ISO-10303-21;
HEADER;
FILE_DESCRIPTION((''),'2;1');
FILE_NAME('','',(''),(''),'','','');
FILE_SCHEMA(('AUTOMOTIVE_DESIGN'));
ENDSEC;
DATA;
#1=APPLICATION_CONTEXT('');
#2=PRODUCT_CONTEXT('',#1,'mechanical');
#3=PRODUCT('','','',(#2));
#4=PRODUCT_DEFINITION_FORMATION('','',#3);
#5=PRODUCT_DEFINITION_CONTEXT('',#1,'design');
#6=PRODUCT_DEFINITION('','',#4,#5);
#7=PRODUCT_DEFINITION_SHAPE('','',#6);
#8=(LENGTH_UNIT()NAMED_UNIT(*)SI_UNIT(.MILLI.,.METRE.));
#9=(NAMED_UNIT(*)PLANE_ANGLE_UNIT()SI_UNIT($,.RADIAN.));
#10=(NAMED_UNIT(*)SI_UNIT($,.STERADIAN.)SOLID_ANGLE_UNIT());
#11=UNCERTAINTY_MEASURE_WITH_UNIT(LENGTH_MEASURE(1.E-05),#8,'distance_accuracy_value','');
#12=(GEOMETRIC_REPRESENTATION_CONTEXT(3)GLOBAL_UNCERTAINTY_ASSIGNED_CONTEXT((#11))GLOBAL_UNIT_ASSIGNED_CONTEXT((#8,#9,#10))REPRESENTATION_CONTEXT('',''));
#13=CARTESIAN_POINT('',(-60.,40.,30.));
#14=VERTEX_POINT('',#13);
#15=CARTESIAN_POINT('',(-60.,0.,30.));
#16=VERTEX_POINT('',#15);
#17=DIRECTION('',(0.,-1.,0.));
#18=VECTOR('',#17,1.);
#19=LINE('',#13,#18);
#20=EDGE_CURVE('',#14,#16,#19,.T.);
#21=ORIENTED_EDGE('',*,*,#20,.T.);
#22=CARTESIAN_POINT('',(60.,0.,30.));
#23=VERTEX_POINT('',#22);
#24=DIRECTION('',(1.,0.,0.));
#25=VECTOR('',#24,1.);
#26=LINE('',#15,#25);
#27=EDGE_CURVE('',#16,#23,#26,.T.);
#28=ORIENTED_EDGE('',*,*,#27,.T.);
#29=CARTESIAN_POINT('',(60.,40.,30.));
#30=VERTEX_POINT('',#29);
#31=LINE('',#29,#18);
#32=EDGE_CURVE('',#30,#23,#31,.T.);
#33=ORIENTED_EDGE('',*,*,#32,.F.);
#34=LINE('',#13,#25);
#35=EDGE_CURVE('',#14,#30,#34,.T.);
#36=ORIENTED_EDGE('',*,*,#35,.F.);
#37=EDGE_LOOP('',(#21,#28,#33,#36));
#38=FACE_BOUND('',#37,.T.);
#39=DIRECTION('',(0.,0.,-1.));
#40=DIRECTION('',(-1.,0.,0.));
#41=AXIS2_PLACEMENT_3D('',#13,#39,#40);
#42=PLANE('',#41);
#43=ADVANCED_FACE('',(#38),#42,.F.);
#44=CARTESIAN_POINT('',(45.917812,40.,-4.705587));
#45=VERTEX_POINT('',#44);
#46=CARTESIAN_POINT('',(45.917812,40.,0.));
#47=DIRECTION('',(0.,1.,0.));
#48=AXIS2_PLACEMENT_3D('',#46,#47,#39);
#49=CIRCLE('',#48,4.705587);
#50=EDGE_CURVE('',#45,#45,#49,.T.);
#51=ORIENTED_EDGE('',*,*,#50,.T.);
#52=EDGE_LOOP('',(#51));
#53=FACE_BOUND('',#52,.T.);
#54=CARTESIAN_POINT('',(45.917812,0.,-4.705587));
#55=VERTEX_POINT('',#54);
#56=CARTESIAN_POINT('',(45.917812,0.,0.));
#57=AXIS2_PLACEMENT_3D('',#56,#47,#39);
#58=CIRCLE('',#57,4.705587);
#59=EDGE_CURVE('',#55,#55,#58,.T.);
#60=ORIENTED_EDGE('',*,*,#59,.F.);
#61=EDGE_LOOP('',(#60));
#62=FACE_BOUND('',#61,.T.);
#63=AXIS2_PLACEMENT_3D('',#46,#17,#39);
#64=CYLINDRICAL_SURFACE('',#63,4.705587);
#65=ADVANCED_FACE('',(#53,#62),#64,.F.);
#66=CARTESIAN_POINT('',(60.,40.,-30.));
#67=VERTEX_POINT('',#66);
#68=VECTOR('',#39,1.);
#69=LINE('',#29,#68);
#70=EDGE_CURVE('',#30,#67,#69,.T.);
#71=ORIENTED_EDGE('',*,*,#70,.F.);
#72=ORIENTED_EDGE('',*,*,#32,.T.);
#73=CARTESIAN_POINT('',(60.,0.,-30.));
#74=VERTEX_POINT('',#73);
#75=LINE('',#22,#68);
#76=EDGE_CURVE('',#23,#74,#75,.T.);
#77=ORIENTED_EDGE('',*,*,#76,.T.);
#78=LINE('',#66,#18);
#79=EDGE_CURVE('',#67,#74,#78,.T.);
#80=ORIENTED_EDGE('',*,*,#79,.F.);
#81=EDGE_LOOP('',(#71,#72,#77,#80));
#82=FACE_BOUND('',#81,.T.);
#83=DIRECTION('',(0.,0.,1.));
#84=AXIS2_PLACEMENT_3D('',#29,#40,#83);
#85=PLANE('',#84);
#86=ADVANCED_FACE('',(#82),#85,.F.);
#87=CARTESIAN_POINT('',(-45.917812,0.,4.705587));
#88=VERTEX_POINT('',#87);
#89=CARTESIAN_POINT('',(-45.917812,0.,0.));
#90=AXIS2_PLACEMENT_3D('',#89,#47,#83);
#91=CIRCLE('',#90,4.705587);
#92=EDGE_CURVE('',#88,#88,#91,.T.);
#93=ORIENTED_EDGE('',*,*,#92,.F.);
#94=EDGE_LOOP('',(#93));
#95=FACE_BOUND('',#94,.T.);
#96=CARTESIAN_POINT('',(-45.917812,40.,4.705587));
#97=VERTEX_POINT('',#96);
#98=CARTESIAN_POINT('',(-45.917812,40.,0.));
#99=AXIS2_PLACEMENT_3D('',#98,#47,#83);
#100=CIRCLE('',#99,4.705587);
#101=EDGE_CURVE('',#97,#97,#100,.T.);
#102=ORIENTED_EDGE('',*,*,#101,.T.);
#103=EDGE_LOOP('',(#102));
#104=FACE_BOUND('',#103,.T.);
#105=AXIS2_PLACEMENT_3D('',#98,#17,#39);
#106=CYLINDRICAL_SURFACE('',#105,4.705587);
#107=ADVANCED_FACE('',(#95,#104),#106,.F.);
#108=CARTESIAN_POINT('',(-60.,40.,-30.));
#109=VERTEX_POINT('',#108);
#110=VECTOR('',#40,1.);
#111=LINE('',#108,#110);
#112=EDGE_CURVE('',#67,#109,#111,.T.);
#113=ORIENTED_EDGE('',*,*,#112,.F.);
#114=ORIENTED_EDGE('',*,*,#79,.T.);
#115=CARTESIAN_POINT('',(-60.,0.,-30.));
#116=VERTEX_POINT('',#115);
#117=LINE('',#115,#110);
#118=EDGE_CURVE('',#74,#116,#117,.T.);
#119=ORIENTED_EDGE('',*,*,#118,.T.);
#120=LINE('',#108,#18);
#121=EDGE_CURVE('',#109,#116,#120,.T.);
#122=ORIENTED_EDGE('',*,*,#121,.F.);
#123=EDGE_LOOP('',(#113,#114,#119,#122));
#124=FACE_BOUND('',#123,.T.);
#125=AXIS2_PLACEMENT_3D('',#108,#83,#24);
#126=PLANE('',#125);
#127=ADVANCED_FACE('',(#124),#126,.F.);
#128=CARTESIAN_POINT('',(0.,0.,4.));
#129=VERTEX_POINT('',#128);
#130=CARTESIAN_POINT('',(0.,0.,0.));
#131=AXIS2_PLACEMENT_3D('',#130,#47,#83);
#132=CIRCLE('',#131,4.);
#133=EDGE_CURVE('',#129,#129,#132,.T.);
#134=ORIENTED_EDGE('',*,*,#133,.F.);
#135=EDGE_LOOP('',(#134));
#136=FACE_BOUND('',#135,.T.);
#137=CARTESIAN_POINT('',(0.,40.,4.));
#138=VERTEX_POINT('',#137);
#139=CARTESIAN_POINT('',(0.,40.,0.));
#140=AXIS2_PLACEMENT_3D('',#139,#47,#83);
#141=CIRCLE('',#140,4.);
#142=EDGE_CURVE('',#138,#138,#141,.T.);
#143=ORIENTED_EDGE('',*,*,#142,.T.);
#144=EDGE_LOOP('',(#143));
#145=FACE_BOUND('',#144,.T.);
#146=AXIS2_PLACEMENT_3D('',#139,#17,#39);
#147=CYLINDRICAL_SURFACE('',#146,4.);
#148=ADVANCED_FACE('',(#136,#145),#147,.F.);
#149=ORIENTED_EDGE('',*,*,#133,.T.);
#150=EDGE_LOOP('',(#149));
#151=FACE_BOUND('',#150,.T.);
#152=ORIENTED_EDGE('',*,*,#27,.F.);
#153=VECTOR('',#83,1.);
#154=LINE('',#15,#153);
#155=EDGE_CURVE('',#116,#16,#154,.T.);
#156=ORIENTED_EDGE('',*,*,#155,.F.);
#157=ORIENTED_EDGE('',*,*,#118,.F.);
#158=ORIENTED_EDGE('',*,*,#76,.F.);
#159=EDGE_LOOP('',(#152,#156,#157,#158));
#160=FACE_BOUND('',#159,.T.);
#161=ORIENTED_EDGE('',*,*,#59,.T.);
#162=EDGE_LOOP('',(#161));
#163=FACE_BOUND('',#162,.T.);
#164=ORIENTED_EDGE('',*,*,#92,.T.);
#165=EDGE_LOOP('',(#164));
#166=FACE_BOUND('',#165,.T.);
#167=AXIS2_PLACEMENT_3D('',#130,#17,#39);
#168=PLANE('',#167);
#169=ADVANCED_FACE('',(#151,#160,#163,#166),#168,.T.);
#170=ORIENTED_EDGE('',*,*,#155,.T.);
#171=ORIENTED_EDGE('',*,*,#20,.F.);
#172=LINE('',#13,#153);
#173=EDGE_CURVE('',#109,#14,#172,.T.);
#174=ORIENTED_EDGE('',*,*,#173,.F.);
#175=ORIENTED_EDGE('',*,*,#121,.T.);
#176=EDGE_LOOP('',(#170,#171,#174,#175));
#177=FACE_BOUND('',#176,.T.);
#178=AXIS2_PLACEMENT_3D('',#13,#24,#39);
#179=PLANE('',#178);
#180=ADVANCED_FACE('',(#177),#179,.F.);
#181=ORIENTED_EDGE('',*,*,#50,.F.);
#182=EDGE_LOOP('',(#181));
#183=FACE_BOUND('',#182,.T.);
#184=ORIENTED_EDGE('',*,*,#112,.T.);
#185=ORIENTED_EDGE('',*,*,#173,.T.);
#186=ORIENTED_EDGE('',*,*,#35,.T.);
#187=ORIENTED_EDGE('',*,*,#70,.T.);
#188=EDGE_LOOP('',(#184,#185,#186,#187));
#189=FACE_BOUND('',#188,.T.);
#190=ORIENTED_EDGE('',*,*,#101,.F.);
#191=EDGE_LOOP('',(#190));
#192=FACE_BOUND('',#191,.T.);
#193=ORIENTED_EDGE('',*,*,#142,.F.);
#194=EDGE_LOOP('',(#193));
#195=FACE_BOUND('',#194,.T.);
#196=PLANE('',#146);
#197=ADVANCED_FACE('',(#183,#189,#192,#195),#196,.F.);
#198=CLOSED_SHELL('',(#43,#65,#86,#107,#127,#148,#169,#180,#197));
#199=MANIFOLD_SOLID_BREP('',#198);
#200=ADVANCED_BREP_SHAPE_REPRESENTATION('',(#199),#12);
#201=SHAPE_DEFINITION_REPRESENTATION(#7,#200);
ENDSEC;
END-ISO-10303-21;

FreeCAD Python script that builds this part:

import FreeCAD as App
import Part
import Sketcher

doc = App.newDocument("Part")
body = doc.addObject("PartDesign::Body", "Body")

sketch1 = body.newObject("Sketcher::SketchObject", "Sketch")
sketch1.AttachmentSupport = (doc.getObject("XZ_Plane"), [""])
sketch1.MapMode = "FlatFace"
sketch1.addGeometry([
    Part.LineSegment(App.Vector(-60, -30, 0), App.Vector(-60, 30, 0)),
    Part.LineSegment(App.Vector(-60, 30, 0), App.Vector(60, 30, 0)),
    Part.LineSegment(App.Vector(60, 30, 0), App.Vector(60, -30, 0)),
    Part.LineSegment(App.Vector(60, -30, 0), App.Vector(-60, -30, 0)),
    Part.Circle(App.Vector(-45.9, 0, 0), App.Vector(0, 0, 1), 4.7),
    Part.Circle(App.Vector(0, 0, 0), App.Vector(0, 0, 1), 4),
    Part.Circle(App.Vector(45.9, 0, 0), App.Vector(0, 0, 1), 4.7),
], False)
sketch1.addConstraint([
    Sketcher.Constraint("Coincident", 0, 2, 1, 1),
    Sketcher.Constraint("Coincident", 1, 2, 2, 1),
    Sketcher.Constraint("Coincident", 2, 2, 3, 1),
    Sketcher.Constraint("Coincident", 3, 2, 0, 1),
    Sketcher.Constraint("Vertical", 0),
    Sketcher.Constraint("Horizontal", 1),
    Sketcher.Constraint("Vertical", 2),
    Sketcher.Constraint("Horizontal", 3),
    Sketcher.Constraint("Coincident", 5, 3, -1, 1),
    Sketcher.Constraint("Equal", 4, 6),
    Sketcher.Constraint("Symmetric", 4, 3, 6, 3, -1, 1),
    Sketcher.Constraint("Symmetric", 0, 2, 2, 2, -1, 1),
    Sketcher.Constraint("PointOnObject", 4, 3, -1),
    Sketcher.Constraint("Diameter", 5, 8.0),
    Sketcher.Constraint("DistanceX", 1, 1, 1, 2, 120.0),
    Sketcher.Constraint("DistanceY", 0, 1, 0, 2, 60.0),
    Sketcher.Constraint("Diameter", 4, 9.411175),
    Sketcher.Constraint("DistanceX", 4, 3, -1, 1, 45.917812),
])
pad1 = body.newObject("PartDesign::Pad", "Pad")
pad1.Profile = sketch1
pad1.Length = 40
pad1.Reversed = True

doc.recompute()
